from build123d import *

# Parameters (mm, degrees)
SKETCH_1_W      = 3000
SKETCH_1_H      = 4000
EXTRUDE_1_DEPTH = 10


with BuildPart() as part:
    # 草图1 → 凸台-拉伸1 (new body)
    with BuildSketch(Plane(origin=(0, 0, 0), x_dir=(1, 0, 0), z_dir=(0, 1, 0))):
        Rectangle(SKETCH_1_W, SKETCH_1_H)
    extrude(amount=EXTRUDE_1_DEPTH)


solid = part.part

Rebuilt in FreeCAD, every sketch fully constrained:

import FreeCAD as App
import Part
import Sketcher

doc = App.newDocument("Part")
body = doc.addObject("PartDesign::Body", "Body")

sketch1 = body.newObject("Sketcher::SketchObject", "Sketch")
sketch1.AttachmentSupport = (doc.getObject("XZ_Plane"), [""])
sketch1.MapMode = "FlatFace"
sketch1.addGeometry([
    Part.LineSegment(App.Vector(-1500, -2000, 0), App.Vector(-1500, 2000, 0)),
    Part.LineSegment(App.Vector(-1500, 2000, 0), App.Vector(1500, 2000, 0)),
    Part.LineSegment(App.Vector(1500, 2000, 0), App.Vector(1500, -2000, 0)),
    Part.LineSegment(App.Vector(1500, -2000, 0), App.Vector(-1500, -2000, 0)),
], False)
sketch1.addConstraint([
    Sketcher.Constraint("Coincident", 0, 2, 1, 1),
    Sketcher.Constraint("Coincident", 1, 2, 2, 1),
    Sketcher.Constraint("Coincident", 2, 2, 3, 1),
    Sketcher.Constraint("Coincident", 3, 2, 0, 1),
    Sketcher.Constraint("Vertical", 0),
    Sketcher.Constraint("Horizontal", 1),
    Sketcher.Constraint("Vertical", 2),
    Sketcher.Constraint("Horizontal", 3),
    Sketcher.Constraint("Symmetric", 0, 2, 2, 2, -1, 1),
    Sketcher.Constraint("DistanceX", 1, 1, 1, 2, 3000.0),
    Sketcher.Constraint("DistanceY", 0, 1, 0, 2, 4000.0),
])
pad1 = body.newObject("PartDesign::Pad", "Pad")
pad1.Profile = sketch1
pad1.Length = 10
pad1.Reversed = True

doc.recompute()
